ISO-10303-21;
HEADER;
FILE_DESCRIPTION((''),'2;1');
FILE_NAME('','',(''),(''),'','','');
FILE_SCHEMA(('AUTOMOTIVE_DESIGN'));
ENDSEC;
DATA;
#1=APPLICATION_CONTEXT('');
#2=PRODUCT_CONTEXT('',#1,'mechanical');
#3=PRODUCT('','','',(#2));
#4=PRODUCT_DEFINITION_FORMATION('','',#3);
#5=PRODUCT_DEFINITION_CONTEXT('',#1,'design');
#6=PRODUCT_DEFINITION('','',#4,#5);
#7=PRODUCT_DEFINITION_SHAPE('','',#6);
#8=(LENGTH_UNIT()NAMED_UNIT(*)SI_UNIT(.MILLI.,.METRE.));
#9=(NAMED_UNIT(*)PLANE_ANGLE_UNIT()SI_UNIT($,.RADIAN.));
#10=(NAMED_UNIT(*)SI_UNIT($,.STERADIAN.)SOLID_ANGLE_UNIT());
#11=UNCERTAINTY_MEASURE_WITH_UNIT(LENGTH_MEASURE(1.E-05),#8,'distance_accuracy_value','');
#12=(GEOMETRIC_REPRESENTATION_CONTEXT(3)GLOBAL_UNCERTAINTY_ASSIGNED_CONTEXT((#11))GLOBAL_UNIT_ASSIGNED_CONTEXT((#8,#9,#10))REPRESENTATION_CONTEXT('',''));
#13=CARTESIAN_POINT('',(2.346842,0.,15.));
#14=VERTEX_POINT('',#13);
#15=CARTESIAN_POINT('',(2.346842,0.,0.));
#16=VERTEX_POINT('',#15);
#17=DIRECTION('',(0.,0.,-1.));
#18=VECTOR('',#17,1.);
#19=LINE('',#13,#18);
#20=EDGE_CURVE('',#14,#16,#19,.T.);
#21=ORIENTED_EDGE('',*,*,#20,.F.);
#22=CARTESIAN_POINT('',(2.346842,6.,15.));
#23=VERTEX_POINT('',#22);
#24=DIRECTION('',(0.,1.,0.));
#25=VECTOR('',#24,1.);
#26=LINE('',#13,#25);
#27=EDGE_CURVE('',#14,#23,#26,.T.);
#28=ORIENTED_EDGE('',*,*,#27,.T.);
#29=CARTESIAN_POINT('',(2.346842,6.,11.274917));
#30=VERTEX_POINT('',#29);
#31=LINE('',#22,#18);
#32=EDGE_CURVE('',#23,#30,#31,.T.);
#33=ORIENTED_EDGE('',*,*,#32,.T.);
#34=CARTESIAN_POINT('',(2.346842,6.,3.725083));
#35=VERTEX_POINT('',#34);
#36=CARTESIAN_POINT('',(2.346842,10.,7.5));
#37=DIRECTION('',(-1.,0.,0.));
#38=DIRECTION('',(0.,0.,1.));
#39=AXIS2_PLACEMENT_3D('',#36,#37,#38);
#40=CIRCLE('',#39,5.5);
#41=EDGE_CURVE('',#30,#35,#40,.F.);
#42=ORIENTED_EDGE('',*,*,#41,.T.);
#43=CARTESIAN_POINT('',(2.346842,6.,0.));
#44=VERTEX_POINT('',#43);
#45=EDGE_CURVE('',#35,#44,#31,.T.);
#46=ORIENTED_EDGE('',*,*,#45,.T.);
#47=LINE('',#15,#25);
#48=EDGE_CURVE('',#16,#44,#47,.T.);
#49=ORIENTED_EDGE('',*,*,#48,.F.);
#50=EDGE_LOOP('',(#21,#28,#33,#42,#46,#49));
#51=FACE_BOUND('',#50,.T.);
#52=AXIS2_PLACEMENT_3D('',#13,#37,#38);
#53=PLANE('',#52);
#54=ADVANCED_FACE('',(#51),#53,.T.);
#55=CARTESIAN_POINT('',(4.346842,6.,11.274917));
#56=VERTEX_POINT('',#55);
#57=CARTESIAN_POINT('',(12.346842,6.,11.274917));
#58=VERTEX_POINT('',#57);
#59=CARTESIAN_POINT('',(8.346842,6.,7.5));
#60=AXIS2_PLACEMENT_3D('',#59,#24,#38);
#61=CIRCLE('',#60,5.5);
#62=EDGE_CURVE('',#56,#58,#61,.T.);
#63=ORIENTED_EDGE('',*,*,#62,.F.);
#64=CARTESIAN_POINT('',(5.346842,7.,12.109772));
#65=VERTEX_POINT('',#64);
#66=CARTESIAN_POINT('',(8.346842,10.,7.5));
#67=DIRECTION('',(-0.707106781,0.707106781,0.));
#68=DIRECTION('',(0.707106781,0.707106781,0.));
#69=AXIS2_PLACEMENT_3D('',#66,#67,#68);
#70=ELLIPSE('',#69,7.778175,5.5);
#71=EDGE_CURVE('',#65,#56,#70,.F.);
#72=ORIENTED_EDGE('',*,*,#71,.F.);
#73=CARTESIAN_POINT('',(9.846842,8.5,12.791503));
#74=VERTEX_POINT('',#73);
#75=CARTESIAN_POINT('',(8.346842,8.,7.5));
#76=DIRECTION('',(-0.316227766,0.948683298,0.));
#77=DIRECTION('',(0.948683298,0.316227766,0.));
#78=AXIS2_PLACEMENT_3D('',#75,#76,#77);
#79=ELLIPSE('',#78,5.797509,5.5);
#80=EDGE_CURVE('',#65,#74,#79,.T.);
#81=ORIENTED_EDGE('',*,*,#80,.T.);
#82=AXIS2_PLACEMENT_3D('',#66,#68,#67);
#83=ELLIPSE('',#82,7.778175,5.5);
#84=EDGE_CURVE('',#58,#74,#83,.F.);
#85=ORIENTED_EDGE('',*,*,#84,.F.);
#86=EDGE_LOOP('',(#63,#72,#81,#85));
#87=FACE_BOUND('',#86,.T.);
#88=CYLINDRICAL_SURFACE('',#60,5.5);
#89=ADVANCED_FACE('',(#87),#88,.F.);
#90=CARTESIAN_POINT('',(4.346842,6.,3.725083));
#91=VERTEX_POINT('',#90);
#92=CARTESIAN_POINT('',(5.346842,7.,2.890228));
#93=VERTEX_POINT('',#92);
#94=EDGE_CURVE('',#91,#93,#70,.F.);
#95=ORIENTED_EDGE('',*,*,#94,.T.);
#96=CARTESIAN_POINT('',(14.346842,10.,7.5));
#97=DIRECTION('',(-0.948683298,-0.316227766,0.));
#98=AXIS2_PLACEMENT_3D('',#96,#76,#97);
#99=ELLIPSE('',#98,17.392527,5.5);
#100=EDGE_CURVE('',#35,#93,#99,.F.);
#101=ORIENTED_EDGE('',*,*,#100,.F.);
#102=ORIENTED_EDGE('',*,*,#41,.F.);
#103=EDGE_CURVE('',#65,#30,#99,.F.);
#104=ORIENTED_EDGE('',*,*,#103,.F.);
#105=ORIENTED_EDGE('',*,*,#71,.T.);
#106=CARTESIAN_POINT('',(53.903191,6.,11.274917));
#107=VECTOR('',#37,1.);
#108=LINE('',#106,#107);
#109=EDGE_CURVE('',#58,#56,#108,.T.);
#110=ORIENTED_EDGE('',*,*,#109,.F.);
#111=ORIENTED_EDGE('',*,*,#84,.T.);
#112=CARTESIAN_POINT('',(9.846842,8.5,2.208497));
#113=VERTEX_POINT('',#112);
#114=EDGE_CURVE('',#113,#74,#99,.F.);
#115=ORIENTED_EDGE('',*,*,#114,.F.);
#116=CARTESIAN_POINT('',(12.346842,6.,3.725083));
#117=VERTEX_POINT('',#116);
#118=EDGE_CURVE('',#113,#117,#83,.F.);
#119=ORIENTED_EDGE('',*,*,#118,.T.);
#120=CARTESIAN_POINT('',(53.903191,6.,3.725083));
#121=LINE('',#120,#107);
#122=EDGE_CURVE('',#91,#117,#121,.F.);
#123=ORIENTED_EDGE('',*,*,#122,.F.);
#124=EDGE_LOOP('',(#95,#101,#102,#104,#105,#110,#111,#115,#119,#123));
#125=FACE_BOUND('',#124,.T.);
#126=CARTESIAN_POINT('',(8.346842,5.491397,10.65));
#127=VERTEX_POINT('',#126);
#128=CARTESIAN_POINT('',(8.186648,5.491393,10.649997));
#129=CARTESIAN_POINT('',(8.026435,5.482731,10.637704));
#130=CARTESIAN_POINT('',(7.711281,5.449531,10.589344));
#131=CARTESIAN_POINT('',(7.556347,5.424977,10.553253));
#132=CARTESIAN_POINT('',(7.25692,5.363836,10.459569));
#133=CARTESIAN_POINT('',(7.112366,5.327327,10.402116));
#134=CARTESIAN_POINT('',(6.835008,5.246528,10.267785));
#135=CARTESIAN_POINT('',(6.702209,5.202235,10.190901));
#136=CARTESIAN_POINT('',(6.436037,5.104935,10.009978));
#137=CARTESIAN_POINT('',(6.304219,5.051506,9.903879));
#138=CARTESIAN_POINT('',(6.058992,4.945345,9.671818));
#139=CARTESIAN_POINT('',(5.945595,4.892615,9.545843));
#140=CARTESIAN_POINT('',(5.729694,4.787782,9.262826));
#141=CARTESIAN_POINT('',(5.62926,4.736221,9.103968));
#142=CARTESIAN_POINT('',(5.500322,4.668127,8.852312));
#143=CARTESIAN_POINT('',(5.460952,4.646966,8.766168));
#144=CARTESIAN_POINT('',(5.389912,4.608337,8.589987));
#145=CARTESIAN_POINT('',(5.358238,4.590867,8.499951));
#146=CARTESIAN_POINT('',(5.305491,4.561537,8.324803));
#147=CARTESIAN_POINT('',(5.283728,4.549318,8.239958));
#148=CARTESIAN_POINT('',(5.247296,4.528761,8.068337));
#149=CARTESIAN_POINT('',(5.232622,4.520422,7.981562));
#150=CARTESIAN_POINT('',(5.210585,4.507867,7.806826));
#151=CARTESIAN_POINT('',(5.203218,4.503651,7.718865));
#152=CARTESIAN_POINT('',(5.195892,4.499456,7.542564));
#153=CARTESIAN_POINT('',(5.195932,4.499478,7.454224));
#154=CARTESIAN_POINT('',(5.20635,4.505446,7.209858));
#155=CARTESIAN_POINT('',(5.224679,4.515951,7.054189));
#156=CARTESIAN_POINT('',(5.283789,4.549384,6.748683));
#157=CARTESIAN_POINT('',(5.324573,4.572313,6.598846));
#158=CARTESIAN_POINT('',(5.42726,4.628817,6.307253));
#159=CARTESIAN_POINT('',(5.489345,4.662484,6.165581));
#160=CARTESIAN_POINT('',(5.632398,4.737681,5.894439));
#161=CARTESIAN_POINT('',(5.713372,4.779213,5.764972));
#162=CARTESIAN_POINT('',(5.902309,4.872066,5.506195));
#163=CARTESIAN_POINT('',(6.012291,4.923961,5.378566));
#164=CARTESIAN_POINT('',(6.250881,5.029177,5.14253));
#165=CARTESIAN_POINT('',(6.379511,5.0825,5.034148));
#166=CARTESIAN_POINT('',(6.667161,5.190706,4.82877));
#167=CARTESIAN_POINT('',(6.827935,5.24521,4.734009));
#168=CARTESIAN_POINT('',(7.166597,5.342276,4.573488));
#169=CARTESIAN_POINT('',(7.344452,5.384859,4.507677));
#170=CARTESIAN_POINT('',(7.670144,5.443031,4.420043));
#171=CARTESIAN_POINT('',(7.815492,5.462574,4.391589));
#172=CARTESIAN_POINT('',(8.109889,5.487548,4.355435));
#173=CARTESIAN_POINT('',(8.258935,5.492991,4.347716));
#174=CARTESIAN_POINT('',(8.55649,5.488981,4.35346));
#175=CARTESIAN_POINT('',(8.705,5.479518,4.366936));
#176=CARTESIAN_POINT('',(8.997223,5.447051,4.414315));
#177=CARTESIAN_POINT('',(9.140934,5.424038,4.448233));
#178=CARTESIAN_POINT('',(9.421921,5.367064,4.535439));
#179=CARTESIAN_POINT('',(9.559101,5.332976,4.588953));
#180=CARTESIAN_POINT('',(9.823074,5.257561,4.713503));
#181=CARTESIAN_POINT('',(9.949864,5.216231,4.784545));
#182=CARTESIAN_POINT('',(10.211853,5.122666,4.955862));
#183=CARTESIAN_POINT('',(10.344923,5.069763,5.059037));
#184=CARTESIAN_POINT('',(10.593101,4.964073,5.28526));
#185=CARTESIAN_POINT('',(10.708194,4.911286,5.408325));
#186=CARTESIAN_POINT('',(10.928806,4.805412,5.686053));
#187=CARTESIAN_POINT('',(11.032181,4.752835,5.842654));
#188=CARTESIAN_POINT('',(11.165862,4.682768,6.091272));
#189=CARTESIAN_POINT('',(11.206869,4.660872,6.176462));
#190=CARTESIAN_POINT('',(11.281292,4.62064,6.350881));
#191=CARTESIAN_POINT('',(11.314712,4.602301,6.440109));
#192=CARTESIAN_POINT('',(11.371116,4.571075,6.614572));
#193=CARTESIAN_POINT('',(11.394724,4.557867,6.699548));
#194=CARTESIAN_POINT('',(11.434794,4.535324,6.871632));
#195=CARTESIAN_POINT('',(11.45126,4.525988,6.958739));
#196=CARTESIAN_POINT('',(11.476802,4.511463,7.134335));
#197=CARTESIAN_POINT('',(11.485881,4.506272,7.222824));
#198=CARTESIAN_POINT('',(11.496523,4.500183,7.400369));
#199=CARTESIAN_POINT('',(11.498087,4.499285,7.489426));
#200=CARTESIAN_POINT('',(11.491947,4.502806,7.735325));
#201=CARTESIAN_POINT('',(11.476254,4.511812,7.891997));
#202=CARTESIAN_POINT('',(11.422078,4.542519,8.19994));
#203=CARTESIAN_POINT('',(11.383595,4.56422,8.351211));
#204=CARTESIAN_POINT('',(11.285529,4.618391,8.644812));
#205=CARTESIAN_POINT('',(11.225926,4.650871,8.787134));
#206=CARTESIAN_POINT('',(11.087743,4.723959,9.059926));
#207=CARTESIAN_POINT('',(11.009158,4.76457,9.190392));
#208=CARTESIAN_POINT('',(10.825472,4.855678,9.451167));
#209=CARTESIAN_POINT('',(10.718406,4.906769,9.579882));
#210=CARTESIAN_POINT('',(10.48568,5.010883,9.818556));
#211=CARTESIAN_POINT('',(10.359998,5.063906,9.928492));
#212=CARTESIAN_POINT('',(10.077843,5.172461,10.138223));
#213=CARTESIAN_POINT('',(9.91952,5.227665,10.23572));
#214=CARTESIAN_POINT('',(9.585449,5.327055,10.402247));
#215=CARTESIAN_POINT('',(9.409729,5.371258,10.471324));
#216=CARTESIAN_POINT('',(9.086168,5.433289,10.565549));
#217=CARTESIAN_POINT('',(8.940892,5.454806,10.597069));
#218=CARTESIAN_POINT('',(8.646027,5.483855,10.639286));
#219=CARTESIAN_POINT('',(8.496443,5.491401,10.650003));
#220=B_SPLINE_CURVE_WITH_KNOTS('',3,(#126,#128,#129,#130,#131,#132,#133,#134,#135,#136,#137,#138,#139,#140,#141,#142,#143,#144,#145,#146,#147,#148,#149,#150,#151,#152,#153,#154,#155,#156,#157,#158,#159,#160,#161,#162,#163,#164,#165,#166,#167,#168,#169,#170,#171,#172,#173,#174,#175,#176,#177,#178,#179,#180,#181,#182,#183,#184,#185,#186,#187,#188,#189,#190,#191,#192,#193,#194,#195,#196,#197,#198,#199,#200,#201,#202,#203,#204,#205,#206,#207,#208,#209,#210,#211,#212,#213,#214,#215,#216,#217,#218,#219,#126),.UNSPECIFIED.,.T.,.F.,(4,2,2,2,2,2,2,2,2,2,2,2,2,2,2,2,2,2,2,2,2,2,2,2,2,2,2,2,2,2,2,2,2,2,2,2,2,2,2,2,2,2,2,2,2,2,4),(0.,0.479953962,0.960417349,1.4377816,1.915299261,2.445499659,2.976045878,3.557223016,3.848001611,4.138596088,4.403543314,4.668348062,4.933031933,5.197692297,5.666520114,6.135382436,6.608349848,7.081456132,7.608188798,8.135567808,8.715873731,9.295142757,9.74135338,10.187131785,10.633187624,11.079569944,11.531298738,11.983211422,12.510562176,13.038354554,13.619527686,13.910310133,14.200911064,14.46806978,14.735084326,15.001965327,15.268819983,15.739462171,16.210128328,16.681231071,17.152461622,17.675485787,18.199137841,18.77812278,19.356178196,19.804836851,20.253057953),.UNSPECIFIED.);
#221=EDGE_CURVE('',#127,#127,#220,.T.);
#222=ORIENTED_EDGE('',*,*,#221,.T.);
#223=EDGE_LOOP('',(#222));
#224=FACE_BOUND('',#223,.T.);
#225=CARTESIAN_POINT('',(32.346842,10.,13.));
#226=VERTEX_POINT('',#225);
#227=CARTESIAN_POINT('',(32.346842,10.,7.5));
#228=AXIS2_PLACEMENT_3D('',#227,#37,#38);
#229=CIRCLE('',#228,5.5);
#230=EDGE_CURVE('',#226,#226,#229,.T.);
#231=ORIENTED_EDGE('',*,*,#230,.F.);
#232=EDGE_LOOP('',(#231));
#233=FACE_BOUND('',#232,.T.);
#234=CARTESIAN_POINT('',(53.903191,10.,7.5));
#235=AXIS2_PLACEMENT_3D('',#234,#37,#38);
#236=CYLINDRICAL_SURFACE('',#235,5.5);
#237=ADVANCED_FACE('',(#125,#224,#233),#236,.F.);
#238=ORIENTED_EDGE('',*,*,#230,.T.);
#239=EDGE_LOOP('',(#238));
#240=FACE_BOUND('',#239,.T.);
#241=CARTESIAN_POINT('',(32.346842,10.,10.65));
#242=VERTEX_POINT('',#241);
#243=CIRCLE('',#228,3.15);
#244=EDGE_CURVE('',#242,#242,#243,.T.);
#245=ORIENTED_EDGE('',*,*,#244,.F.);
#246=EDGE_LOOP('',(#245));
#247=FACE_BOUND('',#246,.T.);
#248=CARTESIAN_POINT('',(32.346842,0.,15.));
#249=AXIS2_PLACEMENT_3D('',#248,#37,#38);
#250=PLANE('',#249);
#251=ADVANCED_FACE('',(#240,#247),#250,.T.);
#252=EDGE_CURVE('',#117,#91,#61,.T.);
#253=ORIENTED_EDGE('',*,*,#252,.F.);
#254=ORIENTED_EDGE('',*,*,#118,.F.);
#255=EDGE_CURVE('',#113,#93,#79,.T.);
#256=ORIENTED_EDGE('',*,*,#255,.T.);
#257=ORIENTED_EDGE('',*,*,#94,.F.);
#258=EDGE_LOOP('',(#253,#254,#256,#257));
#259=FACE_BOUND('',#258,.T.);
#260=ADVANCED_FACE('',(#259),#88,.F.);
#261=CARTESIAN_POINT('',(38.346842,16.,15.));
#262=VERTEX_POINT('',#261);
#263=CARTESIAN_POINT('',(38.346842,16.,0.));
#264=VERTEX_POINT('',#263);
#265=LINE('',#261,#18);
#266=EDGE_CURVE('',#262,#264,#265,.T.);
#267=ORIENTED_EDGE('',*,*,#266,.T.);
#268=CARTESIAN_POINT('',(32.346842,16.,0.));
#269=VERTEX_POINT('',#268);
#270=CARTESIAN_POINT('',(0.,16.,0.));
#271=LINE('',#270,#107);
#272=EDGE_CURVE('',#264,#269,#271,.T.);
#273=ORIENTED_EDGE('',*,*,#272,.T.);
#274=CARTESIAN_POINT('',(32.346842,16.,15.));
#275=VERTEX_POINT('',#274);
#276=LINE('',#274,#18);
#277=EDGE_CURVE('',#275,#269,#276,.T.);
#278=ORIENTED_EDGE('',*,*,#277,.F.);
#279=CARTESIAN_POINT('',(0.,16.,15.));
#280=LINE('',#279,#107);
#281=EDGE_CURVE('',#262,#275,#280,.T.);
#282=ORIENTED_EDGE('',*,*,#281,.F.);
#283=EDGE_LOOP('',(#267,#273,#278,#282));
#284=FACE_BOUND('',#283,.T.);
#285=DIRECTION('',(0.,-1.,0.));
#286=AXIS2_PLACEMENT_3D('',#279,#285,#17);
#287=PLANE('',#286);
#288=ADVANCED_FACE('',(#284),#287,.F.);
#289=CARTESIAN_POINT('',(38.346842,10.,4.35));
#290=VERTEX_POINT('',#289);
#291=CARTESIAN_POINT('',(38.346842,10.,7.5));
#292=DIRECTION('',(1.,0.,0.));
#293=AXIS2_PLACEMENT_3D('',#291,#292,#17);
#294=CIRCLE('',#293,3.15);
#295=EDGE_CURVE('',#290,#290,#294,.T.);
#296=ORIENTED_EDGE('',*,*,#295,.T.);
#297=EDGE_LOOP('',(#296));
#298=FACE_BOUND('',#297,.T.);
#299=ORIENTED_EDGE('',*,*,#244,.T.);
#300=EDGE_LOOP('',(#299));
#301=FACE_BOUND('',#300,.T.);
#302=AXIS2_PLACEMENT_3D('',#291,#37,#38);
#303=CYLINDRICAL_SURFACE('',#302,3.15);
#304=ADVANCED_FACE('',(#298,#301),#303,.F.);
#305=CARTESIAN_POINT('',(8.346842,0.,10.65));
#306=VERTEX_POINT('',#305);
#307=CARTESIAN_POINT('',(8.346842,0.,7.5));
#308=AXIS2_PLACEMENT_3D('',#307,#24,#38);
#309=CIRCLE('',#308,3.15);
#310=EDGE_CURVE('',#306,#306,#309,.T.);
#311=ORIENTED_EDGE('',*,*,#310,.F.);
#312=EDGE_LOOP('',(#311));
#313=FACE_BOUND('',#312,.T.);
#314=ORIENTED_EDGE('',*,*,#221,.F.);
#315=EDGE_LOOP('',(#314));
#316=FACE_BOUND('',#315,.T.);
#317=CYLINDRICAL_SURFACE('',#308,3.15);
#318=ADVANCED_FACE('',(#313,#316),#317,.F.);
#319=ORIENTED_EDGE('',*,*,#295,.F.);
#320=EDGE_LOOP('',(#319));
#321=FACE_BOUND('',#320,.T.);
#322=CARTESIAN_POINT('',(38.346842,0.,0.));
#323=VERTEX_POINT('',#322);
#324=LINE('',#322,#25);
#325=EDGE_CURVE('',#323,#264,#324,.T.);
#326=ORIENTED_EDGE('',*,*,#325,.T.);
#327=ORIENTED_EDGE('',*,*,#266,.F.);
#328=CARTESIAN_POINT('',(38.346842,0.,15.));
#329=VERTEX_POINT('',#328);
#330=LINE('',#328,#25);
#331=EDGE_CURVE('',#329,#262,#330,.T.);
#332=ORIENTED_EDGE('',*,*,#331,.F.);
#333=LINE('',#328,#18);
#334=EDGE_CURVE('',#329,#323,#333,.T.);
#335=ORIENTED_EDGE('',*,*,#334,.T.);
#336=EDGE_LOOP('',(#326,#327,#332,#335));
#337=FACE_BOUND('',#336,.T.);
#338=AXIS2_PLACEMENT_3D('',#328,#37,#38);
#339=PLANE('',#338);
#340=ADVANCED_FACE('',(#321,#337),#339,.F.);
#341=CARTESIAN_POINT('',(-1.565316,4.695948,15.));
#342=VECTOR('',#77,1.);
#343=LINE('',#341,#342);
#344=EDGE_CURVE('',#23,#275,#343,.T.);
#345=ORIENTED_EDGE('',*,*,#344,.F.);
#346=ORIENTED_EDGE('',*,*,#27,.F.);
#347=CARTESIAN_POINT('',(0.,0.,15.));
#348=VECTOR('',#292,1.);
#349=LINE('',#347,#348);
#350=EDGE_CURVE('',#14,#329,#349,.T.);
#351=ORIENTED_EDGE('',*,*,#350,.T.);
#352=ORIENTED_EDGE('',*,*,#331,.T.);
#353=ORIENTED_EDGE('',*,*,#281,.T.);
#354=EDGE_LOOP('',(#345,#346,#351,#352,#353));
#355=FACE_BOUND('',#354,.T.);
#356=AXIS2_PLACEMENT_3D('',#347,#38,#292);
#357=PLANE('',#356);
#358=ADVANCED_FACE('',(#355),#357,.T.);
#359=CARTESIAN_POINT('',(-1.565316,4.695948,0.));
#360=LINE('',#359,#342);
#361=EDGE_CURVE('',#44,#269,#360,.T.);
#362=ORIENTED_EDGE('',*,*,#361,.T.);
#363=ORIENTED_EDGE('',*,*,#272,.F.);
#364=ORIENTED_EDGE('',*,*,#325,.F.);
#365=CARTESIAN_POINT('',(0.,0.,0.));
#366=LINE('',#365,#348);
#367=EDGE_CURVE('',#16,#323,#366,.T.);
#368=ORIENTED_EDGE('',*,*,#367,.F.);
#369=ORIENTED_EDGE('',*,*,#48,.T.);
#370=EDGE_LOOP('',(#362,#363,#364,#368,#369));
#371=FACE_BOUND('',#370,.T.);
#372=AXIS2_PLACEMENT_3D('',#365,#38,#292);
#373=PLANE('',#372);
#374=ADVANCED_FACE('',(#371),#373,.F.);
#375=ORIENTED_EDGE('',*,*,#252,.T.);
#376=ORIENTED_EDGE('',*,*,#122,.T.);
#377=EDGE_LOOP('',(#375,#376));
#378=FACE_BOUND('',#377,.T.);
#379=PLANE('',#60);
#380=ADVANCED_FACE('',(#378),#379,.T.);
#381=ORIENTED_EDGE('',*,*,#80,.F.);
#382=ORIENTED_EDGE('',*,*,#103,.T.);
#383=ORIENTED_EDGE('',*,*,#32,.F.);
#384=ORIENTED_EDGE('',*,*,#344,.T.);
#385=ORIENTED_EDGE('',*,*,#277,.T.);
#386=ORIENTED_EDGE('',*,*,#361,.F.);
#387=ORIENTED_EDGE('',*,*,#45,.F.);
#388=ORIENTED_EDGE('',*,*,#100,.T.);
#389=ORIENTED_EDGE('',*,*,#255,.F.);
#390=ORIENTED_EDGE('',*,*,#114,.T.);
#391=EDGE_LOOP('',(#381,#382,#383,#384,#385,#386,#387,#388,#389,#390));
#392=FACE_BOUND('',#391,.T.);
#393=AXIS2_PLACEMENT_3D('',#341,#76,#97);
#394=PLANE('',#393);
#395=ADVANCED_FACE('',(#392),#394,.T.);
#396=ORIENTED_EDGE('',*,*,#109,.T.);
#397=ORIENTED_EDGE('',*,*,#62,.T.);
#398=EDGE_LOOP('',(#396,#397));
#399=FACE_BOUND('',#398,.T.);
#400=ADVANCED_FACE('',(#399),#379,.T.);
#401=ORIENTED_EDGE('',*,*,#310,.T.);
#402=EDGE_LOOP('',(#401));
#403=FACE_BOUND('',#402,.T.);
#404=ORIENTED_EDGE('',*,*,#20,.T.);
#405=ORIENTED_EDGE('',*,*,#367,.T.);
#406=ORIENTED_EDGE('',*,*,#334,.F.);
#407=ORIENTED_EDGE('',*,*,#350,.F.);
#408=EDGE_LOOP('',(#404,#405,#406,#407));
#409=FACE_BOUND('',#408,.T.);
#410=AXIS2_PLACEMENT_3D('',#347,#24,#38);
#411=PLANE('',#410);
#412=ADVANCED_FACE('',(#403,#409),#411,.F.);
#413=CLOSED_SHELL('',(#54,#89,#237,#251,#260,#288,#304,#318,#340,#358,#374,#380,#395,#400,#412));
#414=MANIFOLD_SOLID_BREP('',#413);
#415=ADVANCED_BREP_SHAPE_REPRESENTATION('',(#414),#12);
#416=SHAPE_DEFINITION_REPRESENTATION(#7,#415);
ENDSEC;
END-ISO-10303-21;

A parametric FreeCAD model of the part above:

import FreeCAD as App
import Part
import Sketcher

V = App.Vector


def add_polygon(sketch, points):
    """Adds a closed chain of lines whose ends are joined by coincident constraints."""
    first, n = sketch.GeometryCount, len(points)
    for a, b in zip(points, points[1:] + points[:1]):
        sketch.addGeometry(Part.LineSegment(App.Vector(*a, 0), App.Vector(*b, 0)), False)
    for i in range(n):
        sketch.addConstraint(Sketcher.Constraint("Coincident", first + i, 2, first + (i + 1) % n, 1))

doc = App.newDocument("Part")
body = doc.addObject("PartDesign::Body", "Body")

# Sketch on XY plane
sketch1 = body.newObject("Sketcher::SketchObject", "Sketch")
sketch1.AttachmentSupport = (doc.getObject("XY_Plane"), [""])
sketch1.MapMode = "FlatFace"
add_polygon(sketch1, [(2.346842, 0), (38.346842, 0), (38.346842, 16), (32.346842, 16), (2.346842, 6)])  # lines 0-4
sketch1.addConstraint([
    Sketcher.Constraint("Horizontal", 0),
    Sketcher.Constraint("Vertical", 1),
    Sketcher.Constraint("Horizontal", 2),
    Sketcher.Constraint("Vertical", 4),
    Sketcher.Constraint("PointOnObject", 0, 2, -1),
    Sketcher.Constraint("Equal", 2, 4),
    Sketcher.Constraint("DistanceX", 0, 1, 0, 2, 36.0),
    Sketcher.Constraint("DistanceX", 2, 2, 2, 1, 6.0),
    Sketcher.Constraint("DistanceY", 1, 1, 1, 2, 16.0),
    Sketcher.Constraint("DistanceX", -1, 1, 0, 2, 38.346842),
])
pad1 = body.newObject("PartDesign::Pad", "Pad")
pad1.Profile = sketch1
pad1.Length = 15

# Sketch on XZ plane
sketch2 = body.newObject("Sketcher::SketchObject", "Sketch001")
sketch2.AttachmentSupport = (doc.getObject("XZ_Plane"), [""])
sketch2.MapMode = "FlatFace"
sketch2.AttachmentOffset = App.Placement(V(0, 0, -20), App.Rotation())
sketch2.addGeometry(Part.Circle(V(8.346842, 7.5, 0), V(0, 0, 1), 3.15), False)
sketch2.addConstraint([
    Sketcher.Constraint("Diameter", 0, 6.3),
    Sketcher.Constraint("DistanceY", -1, 1, 0, 3, 7.5),
    Sketcher.Constraint("DistanceX", -1, 1, 0, 3, 8.346842),
])
pocket1 = body.newObject("PartDesign::Pocket", "Pocket")
pocket1.Profile = sketch2
pocket1.Type = "ThroughAll"
pocket1.Reversed = True

# Sketch on XZ plane
sketch3 = body.newObject("Sketcher::SketchObject", "Sketch002")
sketch3.AttachmentSupport = (doc.getObject("XZ_Plane"), [""])
sketch3.MapMode = "FlatFace"
sketch3.AttachmentOffset = App.Placement(V(0, 0, -20), App.Rotation())
sketch3.addGeometry([
    Part.Circle(V(8.346842, 7.5, 0), V(0, 0, 1), 5.5),
    Part.Circle(V(8.346842, 7.5, 0), V(0, 0, 1), 3.15),
], False)
sketch3.addConstraint([
    Sketcher.Constraint("Coincident", 1, 3, 0, 3),
    Sketcher.Constraint("Diameter", 0, 11.0),
    Sketcher.Constraint("Diameter", 1, 6.3),
    Sketcher.Constraint("DistanceY", -1, 1, 0, 3, 7.5),
    Sketcher.Constraint("DistanceX", -1, 1, 0, 3, 8.346842),
])
pocket2 = body.newObject("PartDesign::Pocket", "Pocket001")
pocket2.Profile = sketch3
pocket2.Length = 14
pocket2.Reversed = True

# Sketch on YZ plane
sketch4 = body.newObject("Sketcher::SketchObject", "Sketch003")
sketch4.AttachmentSupport = (doc.getObject("YZ_Plane"), [""])
sketch4.MapMode = "FlatFace"
sketch4.addGeometry(Part.Circle(V(10, 7.5, 0), V(0, 0, 1), 3.15), False)
sketch4.addConstraint([
    Sketcher.Constraint("Diameter", 0, 6.3),
    Sketcher.Constraint("DistanceX", -1, 1, 0, 3, 10.0),
    Sketcher.Constraint("DistanceY", -1, 1, 0, 3, 7.5),
])
pocket3 = body.newObject("PartDesign::Pocket", "Pocket002")
pocket3.Profile = sketch4
pocket3.Type = "ThroughAll"
pocket3.Reversed = True

# Sketch on YZ plane
sketch5 = body.newObject("Sketcher::SketchObject", "Sketch004")
sketch5.AttachmentSupport = (doc.getObject("YZ_Plane"), [""])
sketch5.MapMode = "FlatFace"
sketch5.addGeometry([
    Part.Circle(V(10, 7.5, 0), V(0, 0, 1), 5.5),
    Part.Circle(V(10, 7.5, 0), V(0, 0, 1), 3.15),
], False)
sketch5.addConstraint([
    Sketcher.Constraint("Coincident", 1, 3, 0, 3),
    Sketcher.Constraint("Diameter", 0, 11.0),
    Sketcher.Constraint("Diameter", 1, 6.3),
    Sketcher.Constraint("DistanceX", -1, 1, 0, 3, 10.0),
    Sketcher.Constraint("DistanceY", -1, 1, 0, 3, 7.5),
])
pocket4 = body.newObject("PartDesign::Pocket", "Pocket003")
pocket4.Profile = sketch5
pocket4.Length = 32.346842
pocket4.Reversed = True

doc.recompute()
